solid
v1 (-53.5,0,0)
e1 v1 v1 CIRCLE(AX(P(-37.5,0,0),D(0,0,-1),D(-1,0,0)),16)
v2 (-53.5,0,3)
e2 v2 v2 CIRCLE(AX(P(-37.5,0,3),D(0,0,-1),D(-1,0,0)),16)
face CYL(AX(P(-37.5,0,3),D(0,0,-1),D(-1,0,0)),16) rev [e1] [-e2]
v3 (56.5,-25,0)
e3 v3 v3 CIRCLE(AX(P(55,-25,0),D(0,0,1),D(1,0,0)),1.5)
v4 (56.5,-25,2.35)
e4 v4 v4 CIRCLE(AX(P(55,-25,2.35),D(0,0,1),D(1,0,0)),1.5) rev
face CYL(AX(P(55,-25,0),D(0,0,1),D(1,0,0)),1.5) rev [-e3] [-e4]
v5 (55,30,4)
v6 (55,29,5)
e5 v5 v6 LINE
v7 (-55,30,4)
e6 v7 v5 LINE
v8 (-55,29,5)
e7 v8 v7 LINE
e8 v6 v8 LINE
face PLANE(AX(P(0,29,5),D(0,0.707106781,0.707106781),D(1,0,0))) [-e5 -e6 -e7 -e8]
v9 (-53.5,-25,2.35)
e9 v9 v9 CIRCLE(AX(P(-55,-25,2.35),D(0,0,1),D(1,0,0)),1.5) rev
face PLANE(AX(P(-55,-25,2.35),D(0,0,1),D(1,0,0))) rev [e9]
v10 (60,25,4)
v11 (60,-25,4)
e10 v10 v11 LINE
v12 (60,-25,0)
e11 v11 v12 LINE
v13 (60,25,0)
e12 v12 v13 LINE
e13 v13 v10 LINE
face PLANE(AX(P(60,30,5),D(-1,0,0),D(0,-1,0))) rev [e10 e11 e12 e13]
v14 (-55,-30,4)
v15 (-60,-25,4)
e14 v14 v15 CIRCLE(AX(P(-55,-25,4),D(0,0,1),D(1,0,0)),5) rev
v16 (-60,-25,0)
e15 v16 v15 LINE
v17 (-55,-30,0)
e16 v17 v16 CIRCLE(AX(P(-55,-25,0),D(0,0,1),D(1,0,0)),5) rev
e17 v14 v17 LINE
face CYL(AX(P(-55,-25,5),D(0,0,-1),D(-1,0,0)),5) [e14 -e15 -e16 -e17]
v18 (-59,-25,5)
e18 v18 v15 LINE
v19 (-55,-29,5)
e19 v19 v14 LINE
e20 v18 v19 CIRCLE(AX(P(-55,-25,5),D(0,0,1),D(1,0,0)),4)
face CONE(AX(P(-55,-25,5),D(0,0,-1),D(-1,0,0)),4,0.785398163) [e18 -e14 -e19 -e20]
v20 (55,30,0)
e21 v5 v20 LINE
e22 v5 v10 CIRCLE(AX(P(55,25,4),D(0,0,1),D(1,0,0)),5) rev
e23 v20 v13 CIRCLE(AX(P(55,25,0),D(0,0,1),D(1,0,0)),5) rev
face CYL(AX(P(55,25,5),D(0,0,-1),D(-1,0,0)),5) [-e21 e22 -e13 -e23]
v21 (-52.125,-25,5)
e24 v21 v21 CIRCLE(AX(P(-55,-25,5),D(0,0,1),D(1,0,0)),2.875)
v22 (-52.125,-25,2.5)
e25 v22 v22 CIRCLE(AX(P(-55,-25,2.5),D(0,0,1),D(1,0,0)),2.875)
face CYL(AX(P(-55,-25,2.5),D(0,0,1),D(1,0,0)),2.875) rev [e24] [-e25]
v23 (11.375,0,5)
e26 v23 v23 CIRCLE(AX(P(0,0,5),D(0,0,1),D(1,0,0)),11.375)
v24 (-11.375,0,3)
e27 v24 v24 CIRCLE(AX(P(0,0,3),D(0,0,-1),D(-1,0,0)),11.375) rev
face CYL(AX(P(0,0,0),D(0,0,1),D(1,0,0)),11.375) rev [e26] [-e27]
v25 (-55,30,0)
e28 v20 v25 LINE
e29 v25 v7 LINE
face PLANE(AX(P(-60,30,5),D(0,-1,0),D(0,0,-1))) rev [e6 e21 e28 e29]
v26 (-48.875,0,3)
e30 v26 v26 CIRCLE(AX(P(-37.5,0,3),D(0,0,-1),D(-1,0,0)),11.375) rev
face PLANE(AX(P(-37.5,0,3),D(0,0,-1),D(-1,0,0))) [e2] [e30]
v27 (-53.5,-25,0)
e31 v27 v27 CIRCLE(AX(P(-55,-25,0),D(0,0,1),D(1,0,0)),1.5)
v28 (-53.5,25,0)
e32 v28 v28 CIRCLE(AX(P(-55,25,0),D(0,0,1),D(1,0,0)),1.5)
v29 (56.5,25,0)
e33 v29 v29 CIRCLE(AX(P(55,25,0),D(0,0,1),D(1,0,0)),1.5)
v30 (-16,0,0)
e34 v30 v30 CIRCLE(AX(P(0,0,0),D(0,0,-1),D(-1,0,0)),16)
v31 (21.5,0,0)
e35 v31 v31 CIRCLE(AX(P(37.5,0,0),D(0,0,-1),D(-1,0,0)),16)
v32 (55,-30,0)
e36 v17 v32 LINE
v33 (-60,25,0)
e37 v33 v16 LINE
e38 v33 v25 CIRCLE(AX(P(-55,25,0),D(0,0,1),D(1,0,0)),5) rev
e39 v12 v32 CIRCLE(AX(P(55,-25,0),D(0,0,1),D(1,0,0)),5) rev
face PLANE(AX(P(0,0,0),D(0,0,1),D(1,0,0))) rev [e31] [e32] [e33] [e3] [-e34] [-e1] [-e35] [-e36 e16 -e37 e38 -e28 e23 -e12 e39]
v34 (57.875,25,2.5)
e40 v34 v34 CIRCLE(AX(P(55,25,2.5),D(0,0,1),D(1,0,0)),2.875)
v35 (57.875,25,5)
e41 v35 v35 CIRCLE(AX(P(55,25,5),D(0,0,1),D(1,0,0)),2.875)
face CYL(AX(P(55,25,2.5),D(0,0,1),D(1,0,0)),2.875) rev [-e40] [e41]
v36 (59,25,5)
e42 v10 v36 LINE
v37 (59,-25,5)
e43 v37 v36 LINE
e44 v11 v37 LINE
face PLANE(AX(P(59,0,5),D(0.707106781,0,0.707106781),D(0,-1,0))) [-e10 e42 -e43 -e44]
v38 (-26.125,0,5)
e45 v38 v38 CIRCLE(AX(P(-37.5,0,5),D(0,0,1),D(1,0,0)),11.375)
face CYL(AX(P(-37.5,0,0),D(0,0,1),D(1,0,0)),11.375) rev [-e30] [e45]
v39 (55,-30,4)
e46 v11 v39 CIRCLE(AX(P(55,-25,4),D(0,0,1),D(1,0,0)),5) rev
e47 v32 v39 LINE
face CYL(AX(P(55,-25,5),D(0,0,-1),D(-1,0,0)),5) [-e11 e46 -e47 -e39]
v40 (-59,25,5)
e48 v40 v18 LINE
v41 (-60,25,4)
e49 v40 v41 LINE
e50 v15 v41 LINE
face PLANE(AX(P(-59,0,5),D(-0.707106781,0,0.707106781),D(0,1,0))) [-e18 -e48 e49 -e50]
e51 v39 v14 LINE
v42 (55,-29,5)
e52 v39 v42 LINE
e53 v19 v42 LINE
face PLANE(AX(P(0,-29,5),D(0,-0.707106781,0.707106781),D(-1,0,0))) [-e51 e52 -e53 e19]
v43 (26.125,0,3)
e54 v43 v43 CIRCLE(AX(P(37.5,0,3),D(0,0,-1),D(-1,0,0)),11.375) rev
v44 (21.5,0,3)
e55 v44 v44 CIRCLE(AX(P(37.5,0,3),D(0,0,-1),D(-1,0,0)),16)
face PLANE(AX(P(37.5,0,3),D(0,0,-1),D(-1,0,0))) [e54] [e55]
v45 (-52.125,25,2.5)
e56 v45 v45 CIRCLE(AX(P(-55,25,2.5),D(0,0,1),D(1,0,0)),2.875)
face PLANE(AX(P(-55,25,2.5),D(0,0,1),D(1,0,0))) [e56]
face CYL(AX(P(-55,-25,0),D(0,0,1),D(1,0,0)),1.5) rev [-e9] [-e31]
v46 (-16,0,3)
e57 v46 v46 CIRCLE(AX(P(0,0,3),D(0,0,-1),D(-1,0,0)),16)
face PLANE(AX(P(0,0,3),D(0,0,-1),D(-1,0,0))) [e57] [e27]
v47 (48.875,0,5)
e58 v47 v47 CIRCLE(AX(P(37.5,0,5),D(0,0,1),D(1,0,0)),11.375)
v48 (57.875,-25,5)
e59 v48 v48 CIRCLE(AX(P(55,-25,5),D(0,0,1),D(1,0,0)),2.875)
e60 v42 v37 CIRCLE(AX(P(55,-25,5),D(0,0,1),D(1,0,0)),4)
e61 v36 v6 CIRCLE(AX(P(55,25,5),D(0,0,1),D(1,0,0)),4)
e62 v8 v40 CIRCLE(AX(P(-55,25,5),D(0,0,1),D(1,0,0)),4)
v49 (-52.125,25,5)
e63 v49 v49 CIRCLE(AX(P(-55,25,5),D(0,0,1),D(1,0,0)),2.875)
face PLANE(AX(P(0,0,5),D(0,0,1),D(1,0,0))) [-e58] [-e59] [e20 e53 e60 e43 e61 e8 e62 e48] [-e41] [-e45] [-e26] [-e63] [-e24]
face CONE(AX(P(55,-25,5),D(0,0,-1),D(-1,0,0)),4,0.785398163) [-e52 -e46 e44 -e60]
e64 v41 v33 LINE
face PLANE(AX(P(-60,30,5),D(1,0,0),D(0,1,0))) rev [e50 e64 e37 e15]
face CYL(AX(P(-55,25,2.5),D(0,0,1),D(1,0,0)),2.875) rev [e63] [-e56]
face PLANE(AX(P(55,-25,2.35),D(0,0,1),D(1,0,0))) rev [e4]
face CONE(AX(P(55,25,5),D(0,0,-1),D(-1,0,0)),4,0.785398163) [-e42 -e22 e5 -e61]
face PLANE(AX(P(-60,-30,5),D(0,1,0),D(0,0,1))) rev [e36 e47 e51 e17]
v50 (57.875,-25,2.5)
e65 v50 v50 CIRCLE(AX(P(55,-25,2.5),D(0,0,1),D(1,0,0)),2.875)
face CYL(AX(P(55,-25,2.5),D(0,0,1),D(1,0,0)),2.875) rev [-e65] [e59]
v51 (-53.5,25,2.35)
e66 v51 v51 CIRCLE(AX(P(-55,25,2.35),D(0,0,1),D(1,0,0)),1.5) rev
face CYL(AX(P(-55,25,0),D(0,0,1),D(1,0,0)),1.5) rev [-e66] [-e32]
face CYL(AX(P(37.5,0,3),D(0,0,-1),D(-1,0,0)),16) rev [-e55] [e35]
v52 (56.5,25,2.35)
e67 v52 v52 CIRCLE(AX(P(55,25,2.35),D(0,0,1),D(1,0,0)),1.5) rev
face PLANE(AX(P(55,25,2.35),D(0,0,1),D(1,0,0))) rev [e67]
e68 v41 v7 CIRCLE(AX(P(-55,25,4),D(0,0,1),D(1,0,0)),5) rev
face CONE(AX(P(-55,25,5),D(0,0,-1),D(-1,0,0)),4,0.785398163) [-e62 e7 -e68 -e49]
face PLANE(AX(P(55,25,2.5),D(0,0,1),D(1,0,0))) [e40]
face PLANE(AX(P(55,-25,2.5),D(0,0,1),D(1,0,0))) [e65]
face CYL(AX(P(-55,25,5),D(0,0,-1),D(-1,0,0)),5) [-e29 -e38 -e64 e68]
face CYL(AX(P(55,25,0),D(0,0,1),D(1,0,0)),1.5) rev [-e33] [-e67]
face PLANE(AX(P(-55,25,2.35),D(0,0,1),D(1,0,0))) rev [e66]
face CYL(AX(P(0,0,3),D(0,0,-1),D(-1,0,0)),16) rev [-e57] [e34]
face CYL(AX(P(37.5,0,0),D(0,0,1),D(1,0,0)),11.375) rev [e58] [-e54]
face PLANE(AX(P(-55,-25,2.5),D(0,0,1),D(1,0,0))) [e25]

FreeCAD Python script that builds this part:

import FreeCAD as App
import Part
import Sketcher
from FreeCAD import Vector
Q = App.Units.Quantity


def edges_at(feature, points):
    """Names of the edges that pass closest to the given points."""
    edges = feature.Shape.Edges
    near = lambda p: min(range(len(edges)), key=lambda i: edges[i].distToShape(Part.Vertex(*p))[0])
    return sorted({f"Edge{near(p) + 1}" for p in points})

doc = App.newDocument("Part")
body = doc.addObject("PartDesign::Body", "Body")

sketch1 = doc.addObject("Sketcher::SketchObject", "Sketch")
body.addObject(sketch1)
sketch1.AttachmentSupport = (doc.XY_Plane, [""])
sketch1.MapMode = "FlatFace"
sketch1.addGeometry(Part.LineSegment(Vector(-60, 30, 0), Vector(-60, -30, 0)), False)
sketch1.addGeometry(Part.LineSegment(Vector(-60, -30, 0), Vector(60, -30, 0)), False)
sketch1.addGeometry(Part.LineSegment(Vector(60, -30, 0), Vector(60, 30, 0)), False)
sketch1.addGeometry(Part.LineSegment(Vector(60, 30, 0), Vector(-60, 30, 0)), False)
sketch1.addConstraint(Sketcher.Constraint("Coincident", 0, 2, 1, 1))
sketch1.addConstraint(Sketcher.Constraint("Coincident", 1, 2, 2, 1))
sketch1.addConstraint(Sketcher.Constraint("Coincident", 2, 2, 3, 1))
sketch1.addConstraint(Sketcher.Constraint("Coincident", 3, 2, 0, 1))
sketch1.addConstraint(Sketcher.Constraint("Vertical", 0))
sketch1.addConstraint(Sketcher.Constraint("Horizontal", 1))
sketch1.addConstraint(Sketcher.Constraint("Vertical", 2))
sketch1.addConstraint(Sketcher.Constraint("Horizontal", 3))
sketch1.addConstraint(Sketcher.Constraint("Symmetric", 0, 2, 2, 2, -1, 1))
sketch1.addConstraint(Sketcher.Constraint("DistanceX", 1, 1, 1, 2, Q("120 mm")))
sketch1.addConstraint(Sketcher.Constraint("DistanceY", 0, 2, 0, 1, Q("60 mm")))
pad1 = doc.addObject("PartDesign::Pad", "Pad")
body.addObject(pad1)
pad1.Profile = sketch1
pad1.Length = 5

sketch2 = doc.addObject("Sketcher::SketchObject", "Sketch001")
body.addObject(sketch2)
sketch2.AttachmentSupport = (doc.XY_Plane, [""])
sketch2.MapMode = "FlatFace"
sketch2.AttachmentOffset = App.Placement(Vector(0, 0, 5), App.Rotation())
sketch2.addGeometry(Part.Circle(Vector(0, 0, 0), Vector(0, 0, 1), 11), False)
sketch2.addGeometry(Part.Circle(Vector(38, 0, 0), Vector(0, 0, 1), 11), False)
sketch2.addGeometry(Part.Circle(Vector(-38, 0, 0), Vector(0, 0, 1), 11), False)
sketch2.addConstraint(Sketcher.Constraint("Coincident", 0, 3, -1, 1))
sketch2.addConstraint(Sketcher.Constraint("Equal", 0, 1))
sketch2.addConstraint(Sketcher.Constraint("Equal", 1, 2))
sketch2.addConstraint(Sketcher.Constraint("Symmetric", 1, 3, 2, 3, -1, 1))
sketch2.addConstraint(Sketcher.Constraint("PointOnObject", 1, 3, -1))
sketch2.addConstraint(Sketcher.Constraint("Diameter", 0, Q("22.75 mm")))
sketch2.addConstraint(Sketcher.Constraint("DistanceX", 2, 3, 1, 3, Q("75 mm")))
pocket1 = doc.addObject("PartDesign::Pocket", "Pocket")
body.addObject(pocket1)
pocket1.Profile = sketch2
pocket1.Type = "ThroughAll"
doc.recompute()

fillet = doc.addObject("PartDesign::Fillet", "Fillet")
body.addObject(fillet)
fillet.Base = (pocket1, edges_at(pocket1, [
    (60, -30, 2.5),
    (-60, -30, 2.5),
    (-60, 30, 2.5),
    (60, 30, 2.5),
]))
fillet.Radius = 5

sketch3 = doc.addObject("Sketcher::SketchObject", "Sketch002")
body.addObject(sketch3)
sketch3.AttachmentSupport = (doc.XY_Plane, [""])
sketch3.MapMode = "FlatFace"
sketch3.AttachmentOffset = App.Placement(Vector(0, 0, 5), App.Rotation())
sketch3.addGeometry(Part.Circle(Vector(-55, 25, 0), Vector(0, 0, 1), 1.5), False)
sketch3.addGeometry(Part.Circle(Vector(55, 25, 0), Vector(0, 0, 1), 1.5), False)
sketch3.addGeometry(Part.Circle(Vector(55, -25, 0), Vector(0, 0, 1), 1.5), False)
sketch3.addGeometry(Part.Circle(Vector(-55, -25, 0), Vector(0, 0, 1), 1.5), False)
sketch3.addConstraint(Sketcher.Constraint("Equal", 0, 1))
sketch3.addConstraint(Sketcher.Constraint("Equal", 1, 2))
sketch3.addConstraint(Sketcher.Constraint("Equal", 2, 3))
sketch3.addConstraint(Sketcher.Constraint("Symmetric", 0, 3, 2, 3, -1, 1))
sketch3.addConstraint(Sketcher.Constraint("Symmetric", 1, 3, 3, 3, -1, 1))
sketch3.addConstraint(Sketcher.Constraint("Symmetric", 0, 3, 1, 3, -2))
sketch3.addConstraint(Sketcher.Constraint("Diameter", 0, Q("3 mm")))
sketch3.addConstraint(Sketcher.Constraint("DistanceX", 0, 3, -1, 1, Q("55 mm")))
sketch3.addConstraint(Sketcher.Constraint("DistanceY", -1, 1, 0, 3, Q("25 mm")))
pocket2 = doc.addObject("PartDesign::Pocket", "Pocket001")
body.addObject(pocket2)
pocket2.Profile = sketch3
pocket2.Type = "ThroughAll"

sketch4 = doc.addObject("Sketcher::SketchObject", "Sketch003")
body.addObject(sketch4)
sketch4.AttachmentSupport = (doc.XY_Plane, [""])
sketch4.MapMode = "FlatFace"
sketch4.AttachmentOffset = App.Placement(Vector(0, 0, 5), App.Rotation())
sketch4.addGeometry(Part.Circle(Vector(-55, 25, 0), Vector(0, 0, 1), 2.9), False)
sketch4.addGeometry(Part.Circle(Vector(55, 25, 0), Vector(0, 0, 1), 2.9), False)
sketch4.addGeometry(Part.Circle(Vector(55, -25, 0), Vector(0, 0, 1), 2.9), False)
sketch4.addGeometry(Part.Circle(Vector(-55, -25, 0), Vector(0, 0, 1), 2.9), False)
sketch4.addConstraint(Sketcher.Constraint("Equal", 0, 1))
sketch4.addConstraint(Sketcher.Constraint("Equal", 1, 2))
sketch4.addConstraint(Sketcher.Constraint("Equal", 2, 3))
sketch4.addConstraint(Sketcher.Constraint("Symmetric", 0, 3, 2, 3, -1, 1))
sketch4.addConstraint(Sketcher.Constraint("Symmetric", 1, 3, 3, 3, -1, 1))
sketch4.addConstraint(Sketcher.Constraint("Symmetric", 0, 3, 1, 3, -2))
sketch4.addConstraint(Sketcher.Constraint("Diameter", 0, Q("5.75 mm")))
sketch4.addConstraint(Sketcher.Constraint("DistanceX", 0, 3, -1, 1, Q("55 mm")))
sketch4.addConstraint(Sketcher.Constraint("DistanceY", -1, 1, 0, 3, Q("25 mm")))
pocket3 = doc.addObject("PartDesign::Pocket", "Pocket002")
body.addObject(pocket3)
pocket3.Profile = sketch4
pocket3.Length = 2.5
doc.recompute()

chamfer = doc.addObject("PartDesign::Chamfer", "Chamfer")
body.addObject(chamfer)
chamfer.Base = (pocket3, edges_at(pocket3, [
    (0, -30, 5),
    (-60, 0, 5),
    (60, 0, 5),
    (0, 30, 5),
    (-58.536, 28.536, 5),
    (58.536, 28.536, 5),
    (58.536, -28.536, 5),
    (-58.536, -28.536, 5),
]))
chamfer.Size = 1

sketch5 = doc.addObject("Sketcher::SketchObject", "Sketch004")
body.addObject(sketch5)
sketch5.AttachmentSupport = (doc.XY_Plane, [""])
sketch5.MapMode = "FlatFace"
sketch5.addGeometry(Part.Circle(Vector(38, 0, 0), Vector(0, 0, 1), 16), False)
sketch5.addGeometry(Part.Circle(Vector(0, 0, 0), Vector(0, 0, 1), 16), False)
sketch5.addGeometry(Part.Circle(Vector(-38, 0, 0), Vector(0, 0, 1), 16), False)
sketch5.addConstraint(Sketcher.Constraint("Coincident", 1, 3, -1, 1))
sketch5.addConstraint(Sketcher.Constraint("Equal", 0, 1))
sketch5.addConstraint(Sketcher.Constraint("Equal", 1, 2))
sketch5.addConstraint(Sketcher.Constraint("Symmetric", 0, 3, 2, 3, -1, 1))
sketch5.addConstraint(Sketcher.Constraint("PointOnObject", 0, 3, -1))
sketch5.addConstraint(Sketcher.Constraint("Diameter", 0, Q("32 mm")))
sketch5.addConstraint(Sketcher.Constraint("DistanceX", 2, 3, 0, 3, Q("75 mm")))
pocket4 = doc.addObject("PartDesign::Pocket", "Pocket003")
body.addObject(pocket4)
pocket4.Profile = sketch5
pocket4.Length = 3
pocket4.Reversed = True

sketch6 = doc.addObject("Sketcher::SketchObject", "Sketch005")
body.addObject(sketch6)
sketch6.AttachmentSupport = (doc.XY_Plane, [""])
sketch6.MapMode = "FlatFace"
sketch6.AttachmentOffset = App.Placement(Vector(0, 0, 2.5), App.Rotation())
sketch6.addGeometry(Part.Circle(Vector(-55, 25, 0), Vector(0, 0, 1), 2.5), False)
sketch6.addGeometry(Part.Circle(Vector(55, 25, 0), Vector(0, 0, 1), 2.5), False)
sketch6.addGeometry(Part.Circle(Vector(55, -25, 0), Vector(0, 0, 1), 2.5), False)
sketch6.addGeometry(Part.Circle(Vector(-55, -25, 0), Vector(0, 0, 1), 2.5), False)
sketch6.addConstraint(Sketcher.Constraint("Equal", 0, 1))
sketch6.addConstraint(Sketcher.Constraint("Equal", 1, 2))
sketch6.addConstraint(Sketcher.Constraint("Equal", 2, 3))
sketch6.addConstraint(Sketcher.Constraint("Symmetric", 0, 3, 2, 3, -1, 1))
sketch6.addConstraint(Sketcher.Constraint("Symmetric", 1, 3, 3, 3, -1, 1))
sketch6.addConstraint(Sketcher.Constraint("Symmetric", 0, 3, 1, 3, -2))
sketch6.addConstraint(Sketcher.Constraint("Diameter", 0, Q("5 mm")))
sketch6.addConstraint(Sketcher.Constraint("DistanceX", 0, 3, -1, 1, Q("55 mm")))
sketch6.addConstraint(Sketcher.Constraint("DistanceY", -1, 1, 0, 3, Q("25 mm")))
pad2 = doc.addObject("PartDesign::Pad", "Pad001")
body.addObject(pad2)
pad2.Profile = sketch6
pad2.Length = 0.15
pad2.Reversed = True

doc.recompute()
